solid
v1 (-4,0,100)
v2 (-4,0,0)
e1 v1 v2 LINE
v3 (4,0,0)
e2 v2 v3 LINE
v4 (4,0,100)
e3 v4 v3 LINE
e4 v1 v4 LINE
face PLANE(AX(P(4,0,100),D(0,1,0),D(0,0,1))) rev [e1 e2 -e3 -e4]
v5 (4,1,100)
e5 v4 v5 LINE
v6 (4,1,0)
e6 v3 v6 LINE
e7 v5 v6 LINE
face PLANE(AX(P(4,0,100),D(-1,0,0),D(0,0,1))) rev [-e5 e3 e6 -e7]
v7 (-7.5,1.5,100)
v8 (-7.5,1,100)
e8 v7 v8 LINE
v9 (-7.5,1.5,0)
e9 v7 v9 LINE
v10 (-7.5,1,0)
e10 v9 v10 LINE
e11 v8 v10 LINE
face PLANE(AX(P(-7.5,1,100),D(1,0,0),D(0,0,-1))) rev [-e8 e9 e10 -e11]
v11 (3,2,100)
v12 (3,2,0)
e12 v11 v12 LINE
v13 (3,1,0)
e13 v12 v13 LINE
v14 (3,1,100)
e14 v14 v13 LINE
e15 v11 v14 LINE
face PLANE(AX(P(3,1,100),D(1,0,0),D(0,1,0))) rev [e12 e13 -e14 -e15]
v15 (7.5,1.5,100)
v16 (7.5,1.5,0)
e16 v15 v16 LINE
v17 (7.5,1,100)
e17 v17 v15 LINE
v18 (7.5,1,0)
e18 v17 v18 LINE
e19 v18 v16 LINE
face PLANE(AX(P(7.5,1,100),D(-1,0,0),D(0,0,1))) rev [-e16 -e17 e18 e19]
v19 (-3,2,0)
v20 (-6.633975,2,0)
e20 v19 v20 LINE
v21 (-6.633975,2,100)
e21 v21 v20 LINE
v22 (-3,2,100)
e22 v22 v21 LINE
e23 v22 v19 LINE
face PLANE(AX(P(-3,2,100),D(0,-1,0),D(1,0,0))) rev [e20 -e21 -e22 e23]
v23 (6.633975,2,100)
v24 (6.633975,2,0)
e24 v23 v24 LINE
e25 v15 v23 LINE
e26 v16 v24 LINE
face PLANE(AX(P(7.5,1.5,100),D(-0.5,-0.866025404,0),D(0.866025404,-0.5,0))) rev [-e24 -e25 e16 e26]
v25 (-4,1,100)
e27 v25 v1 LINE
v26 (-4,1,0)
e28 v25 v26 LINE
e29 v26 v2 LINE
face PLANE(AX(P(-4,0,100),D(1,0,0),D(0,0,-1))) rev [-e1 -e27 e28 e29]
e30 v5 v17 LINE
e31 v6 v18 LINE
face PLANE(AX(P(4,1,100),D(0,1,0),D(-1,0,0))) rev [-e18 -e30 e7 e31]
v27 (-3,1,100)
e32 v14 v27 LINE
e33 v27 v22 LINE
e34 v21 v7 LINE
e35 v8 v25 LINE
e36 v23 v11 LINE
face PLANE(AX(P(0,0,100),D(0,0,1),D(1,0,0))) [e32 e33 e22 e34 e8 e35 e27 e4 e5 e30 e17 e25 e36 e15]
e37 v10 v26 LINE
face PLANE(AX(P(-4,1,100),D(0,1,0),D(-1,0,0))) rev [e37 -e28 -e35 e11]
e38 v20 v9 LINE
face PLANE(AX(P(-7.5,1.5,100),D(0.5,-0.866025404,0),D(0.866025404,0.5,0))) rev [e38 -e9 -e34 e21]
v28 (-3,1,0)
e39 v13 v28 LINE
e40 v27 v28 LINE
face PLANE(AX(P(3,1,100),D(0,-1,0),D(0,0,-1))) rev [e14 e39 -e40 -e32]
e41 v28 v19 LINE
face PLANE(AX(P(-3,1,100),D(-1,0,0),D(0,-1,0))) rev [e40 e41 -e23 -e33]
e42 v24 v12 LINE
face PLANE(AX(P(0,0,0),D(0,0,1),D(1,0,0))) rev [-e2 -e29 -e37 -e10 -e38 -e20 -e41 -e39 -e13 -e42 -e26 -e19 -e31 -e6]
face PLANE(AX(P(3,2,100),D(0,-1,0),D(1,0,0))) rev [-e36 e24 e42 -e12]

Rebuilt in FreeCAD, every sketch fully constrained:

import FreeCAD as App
import Part
import Sketcher

V = App.Vector
Q = App.Units.Quantity


def add_polygon(sketch, points):
    """Adds a closed chain of lines whose ends are joined by coincident constraints."""
    first, n = sketch.GeometryCount, len(points)
    for a, b in zip(points, points[1:] + points[:1]):
        sketch.addGeometry(Part.LineSegment(App.Vector(*a, 0), App.Vector(*b, 0)), False)
    for i in range(n):
        sketch.addConstraint(Sketcher.Constraint("Coincident", first + i, 2, first + (i + 1) % n, 1))

doc = App.newDocument("Part")
body = doc.addObject("PartDesign::Body", "Body")

# Sketch on XY plane
sketch1 = body.newObject("Sketcher::SketchObject", "Sketch")
sketch1.AttachmentSupport = (doc.getObject("XY_Plane"), [""])
sketch1.MapMode = "FlatFace"
add_polygon(sketch1, [(-4, 0), (4, 0), (4, 1), (7.5, 1), (7.5, 1.5), (6.6, 2), (3, 2), (3, 1), (-3, 1), (-3, 2), (-6.6, 2), (-7.5, 1.5), (-7.5, 1), (-4, 1)])  # lines 0-13
sketch1.addConstraint(Sketcher.Constraint("Horizontal", 0))
sketch1.addConstraint(Sketcher.Constraint("Vertical", 1))
sketch1.addConstraint(Sketcher.Constraint("Horizontal", 2))
sketch1.addConstraint(Sketcher.Constraint("Vertical", 3))
sketch1.addConstraint(Sketcher.Constraint("Horizontal", 5))
sketch1.addConstraint(Sketcher.Constraint("Vertical", 6))
sketch1.addConstraint(Sketcher.Constraint("Horizontal", 7))
sketch1.addConstraint(Sketcher.Constraint("Vertical", 8))
sketch1.addConstraint(Sketcher.Constraint("Horizontal", 9))
sketch1.addConstraint(Sketcher.Constraint("Vertical", 11))
sketch1.addConstraint(Sketcher.Constraint("Horizontal", 12))
sketch1.addConstraint(Sketcher.Constraint("Vertical", 13))
sketch1.addConstraint(Sketcher.Constraint("Symmetric", 0, 2, 13, 2, -1, 1))
sketch1.addConstraint(Sketcher.Constraint("Symmetric", 5, 2, 8, 2, -2))
sketch1.addConstraint(Sketcher.Constraint("Symmetric", 3, 2, 10, 2, -2))
sketch1.addConstraint(Sketcher.Constraint("Horizontal", 2, 2, 6, 2))
sketch1.addConstraint(Sketcher.Constraint("Horizontal", 7, 2, 11, 2))
sketch1.addConstraint(Sketcher.Constraint("Equal", 5, 9))
sketch1.addConstraint(Sketcher.Constraint("Equal", 1, 6))
sketch1.addConstraint(Sketcher.Constraint("DistanceX", 0, 1, 0, 2, Q("8 mm")))
sketch1.addConstraint(Sketcher.Constraint("DistanceX", 7, 2, 7, 1, Q("6 mm")))
sketch1.addConstraint(Sketcher.Constraint("DistanceY", 1, 1, 1, 2, Q("1 mm")))
sketch1.addConstraint(Sketcher.Constraint("Angle", 4, Q("150 deg")))
sketch1.addConstraint(Sketcher.Constraint("Distance", 4, Q("1 mm")))
sketch1.addConstraint(Sketcher.Constraint("DistanceX", 2, 1, 2, 2, Q("3.5 mm")))
pad1 = body.newObject("PartDesign::Pad", "Pad")
pad1.Profile = sketch1
pad1.Length = 100

doc.recompute()
